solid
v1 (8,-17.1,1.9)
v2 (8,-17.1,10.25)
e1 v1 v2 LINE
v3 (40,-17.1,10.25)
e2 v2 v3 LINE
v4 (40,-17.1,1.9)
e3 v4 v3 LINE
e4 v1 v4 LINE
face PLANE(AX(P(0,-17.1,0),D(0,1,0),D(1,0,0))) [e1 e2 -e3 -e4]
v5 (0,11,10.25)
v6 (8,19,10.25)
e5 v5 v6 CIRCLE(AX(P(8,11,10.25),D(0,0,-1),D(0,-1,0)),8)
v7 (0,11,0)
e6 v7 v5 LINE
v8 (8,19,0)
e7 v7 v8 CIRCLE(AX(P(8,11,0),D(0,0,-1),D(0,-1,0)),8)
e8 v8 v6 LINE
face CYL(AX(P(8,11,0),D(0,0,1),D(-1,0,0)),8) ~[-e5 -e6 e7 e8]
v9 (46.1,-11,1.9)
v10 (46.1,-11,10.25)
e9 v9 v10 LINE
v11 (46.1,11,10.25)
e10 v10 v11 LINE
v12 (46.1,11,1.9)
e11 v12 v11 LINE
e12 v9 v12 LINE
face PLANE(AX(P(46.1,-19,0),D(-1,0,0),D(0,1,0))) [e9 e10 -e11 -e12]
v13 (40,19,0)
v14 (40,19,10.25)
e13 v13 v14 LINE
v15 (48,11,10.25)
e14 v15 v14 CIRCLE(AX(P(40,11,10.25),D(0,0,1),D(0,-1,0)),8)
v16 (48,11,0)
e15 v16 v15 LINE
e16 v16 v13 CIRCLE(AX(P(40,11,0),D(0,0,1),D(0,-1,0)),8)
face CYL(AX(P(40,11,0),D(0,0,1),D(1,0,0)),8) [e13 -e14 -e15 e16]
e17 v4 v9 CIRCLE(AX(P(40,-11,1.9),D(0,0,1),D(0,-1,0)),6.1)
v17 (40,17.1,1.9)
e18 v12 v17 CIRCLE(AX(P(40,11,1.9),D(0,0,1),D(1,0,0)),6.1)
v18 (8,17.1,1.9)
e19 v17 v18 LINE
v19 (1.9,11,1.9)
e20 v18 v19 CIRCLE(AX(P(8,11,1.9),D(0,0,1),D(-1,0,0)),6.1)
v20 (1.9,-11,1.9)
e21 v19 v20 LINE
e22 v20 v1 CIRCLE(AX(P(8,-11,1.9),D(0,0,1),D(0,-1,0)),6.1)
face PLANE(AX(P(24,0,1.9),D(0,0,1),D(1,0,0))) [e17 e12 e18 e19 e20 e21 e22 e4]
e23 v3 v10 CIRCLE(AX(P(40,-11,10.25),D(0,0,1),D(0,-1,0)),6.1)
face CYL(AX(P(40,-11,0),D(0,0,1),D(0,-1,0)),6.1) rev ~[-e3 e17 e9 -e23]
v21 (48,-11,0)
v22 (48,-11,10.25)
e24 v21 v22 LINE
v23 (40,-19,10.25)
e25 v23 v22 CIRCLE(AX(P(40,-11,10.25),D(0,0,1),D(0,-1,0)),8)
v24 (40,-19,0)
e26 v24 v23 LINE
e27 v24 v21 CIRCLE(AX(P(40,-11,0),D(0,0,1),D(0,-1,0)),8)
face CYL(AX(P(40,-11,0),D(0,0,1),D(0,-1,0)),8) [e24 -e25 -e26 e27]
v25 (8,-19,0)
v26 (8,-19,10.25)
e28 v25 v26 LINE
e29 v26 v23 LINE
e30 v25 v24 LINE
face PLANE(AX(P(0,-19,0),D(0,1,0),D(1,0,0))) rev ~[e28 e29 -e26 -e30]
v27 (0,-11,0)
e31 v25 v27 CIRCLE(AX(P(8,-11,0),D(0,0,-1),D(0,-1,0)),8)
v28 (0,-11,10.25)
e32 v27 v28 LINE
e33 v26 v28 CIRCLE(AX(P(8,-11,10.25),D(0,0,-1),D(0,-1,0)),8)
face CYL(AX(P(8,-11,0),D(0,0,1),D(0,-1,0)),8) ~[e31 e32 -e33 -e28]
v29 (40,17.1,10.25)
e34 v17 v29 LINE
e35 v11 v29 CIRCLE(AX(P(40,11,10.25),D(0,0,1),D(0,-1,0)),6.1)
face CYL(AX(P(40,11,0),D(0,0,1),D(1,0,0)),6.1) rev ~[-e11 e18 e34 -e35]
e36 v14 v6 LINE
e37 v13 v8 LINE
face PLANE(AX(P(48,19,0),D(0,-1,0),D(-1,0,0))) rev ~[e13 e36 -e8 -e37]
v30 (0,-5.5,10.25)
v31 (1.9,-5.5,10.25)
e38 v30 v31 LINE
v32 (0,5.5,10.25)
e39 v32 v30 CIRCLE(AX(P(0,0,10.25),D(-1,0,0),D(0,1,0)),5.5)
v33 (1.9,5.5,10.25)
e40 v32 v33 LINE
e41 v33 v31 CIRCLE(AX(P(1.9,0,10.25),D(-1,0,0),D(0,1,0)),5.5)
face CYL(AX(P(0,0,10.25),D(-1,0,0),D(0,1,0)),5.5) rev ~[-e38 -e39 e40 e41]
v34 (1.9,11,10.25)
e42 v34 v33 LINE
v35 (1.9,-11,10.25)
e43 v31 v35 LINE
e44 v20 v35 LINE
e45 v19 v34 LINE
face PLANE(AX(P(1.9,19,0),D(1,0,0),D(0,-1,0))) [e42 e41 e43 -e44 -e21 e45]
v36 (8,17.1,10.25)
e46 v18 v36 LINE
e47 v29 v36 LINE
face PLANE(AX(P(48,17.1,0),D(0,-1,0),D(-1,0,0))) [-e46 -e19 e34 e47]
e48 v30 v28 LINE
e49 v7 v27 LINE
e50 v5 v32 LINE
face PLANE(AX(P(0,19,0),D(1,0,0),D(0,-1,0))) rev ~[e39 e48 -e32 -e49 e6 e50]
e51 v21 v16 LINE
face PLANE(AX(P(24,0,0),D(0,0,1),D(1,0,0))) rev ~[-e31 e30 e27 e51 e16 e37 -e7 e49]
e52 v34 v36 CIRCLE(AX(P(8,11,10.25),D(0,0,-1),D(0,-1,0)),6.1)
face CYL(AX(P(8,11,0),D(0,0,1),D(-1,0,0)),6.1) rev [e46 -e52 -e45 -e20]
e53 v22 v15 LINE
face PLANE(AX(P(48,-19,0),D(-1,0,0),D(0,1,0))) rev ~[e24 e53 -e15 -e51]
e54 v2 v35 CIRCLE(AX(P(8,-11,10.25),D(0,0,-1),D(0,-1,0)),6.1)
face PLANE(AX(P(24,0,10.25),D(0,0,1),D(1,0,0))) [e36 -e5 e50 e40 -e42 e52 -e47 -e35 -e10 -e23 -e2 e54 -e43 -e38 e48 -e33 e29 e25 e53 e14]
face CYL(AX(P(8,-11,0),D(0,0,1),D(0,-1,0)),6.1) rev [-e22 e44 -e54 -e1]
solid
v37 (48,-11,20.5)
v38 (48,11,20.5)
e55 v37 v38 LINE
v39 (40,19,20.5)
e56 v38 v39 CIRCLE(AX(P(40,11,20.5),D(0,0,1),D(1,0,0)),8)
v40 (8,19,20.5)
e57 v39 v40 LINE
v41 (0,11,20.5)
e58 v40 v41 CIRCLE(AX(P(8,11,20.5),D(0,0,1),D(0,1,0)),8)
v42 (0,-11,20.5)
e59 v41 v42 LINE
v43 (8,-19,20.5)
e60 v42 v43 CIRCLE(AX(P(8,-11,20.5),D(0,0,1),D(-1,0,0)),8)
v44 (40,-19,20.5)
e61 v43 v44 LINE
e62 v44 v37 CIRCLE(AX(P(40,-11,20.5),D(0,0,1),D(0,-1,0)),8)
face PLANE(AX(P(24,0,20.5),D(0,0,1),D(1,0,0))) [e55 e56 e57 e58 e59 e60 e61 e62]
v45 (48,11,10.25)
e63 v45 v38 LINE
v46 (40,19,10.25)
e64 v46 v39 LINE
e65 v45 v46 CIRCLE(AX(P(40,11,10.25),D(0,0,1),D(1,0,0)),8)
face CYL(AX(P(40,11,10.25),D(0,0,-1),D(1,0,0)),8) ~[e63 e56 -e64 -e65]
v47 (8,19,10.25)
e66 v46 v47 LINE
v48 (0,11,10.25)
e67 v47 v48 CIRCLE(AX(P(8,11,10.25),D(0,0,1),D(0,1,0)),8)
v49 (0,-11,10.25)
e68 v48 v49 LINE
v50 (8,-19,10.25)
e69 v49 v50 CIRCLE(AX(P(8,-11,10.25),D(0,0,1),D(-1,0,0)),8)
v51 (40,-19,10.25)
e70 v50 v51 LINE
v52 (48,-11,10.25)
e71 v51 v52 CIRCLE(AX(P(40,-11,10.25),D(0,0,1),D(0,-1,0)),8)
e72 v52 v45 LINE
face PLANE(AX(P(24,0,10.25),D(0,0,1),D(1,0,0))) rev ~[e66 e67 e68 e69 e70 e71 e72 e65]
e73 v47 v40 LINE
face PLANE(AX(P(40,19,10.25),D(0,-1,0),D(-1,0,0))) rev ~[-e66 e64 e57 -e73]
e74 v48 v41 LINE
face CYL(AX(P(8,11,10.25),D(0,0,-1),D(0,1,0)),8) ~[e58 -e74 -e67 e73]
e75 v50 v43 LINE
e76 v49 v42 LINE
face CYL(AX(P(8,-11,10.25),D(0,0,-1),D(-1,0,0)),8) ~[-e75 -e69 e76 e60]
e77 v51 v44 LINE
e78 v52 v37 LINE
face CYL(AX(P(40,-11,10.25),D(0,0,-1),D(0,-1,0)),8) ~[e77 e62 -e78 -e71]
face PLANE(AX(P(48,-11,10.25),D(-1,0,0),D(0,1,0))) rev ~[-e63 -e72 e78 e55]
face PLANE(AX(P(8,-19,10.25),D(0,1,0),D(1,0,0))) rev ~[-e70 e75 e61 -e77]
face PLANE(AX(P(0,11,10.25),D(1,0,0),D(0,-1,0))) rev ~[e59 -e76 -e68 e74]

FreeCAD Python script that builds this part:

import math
import FreeCAD as App
import Part
import Sketcher

V = App.Vector


def edges_at(feature, points):
    """Names of the edges that pass closest to the given points."""
    edges = feature.Shape.Edges
    near = lambda p: min(range(len(edges)), key=lambda i: edges[i].distToShape(Part.Vertex(*p))[0])
    return sorted({f"Edge{near(p) + 1}" for p in points})


def faces_at(feature, points):
    """Names of the faces that lie closest to the given points."""
    faces = feature.Shape.Faces
    near = lambda p: min(range(len(faces)), key=lambda i: faces[i].distToShape(Part.Vertex(*p))[0])
    return sorted({f"Face{near(p) + 1}" for p in points})

doc = App.newDocument("Part")
body = doc.addObject("PartDesign::Body", "Body")

sketch1 = doc.addObject("Sketcher::SketchObject", "Sketch")
body.addObject(sketch1)
sketch1.AttachmentSupport = (doc.XY_Plane, [""])
sketch1.MapMode = "FlatFace"
sketch1.addGeometry([
    Part.LineSegment(V(0, 19, 0), V(0, -19, 0)),
    Part.LineSegment(V(0, -19, 0), V(48, -19, 0)),
    Part.LineSegment(V(48, -19, 0), V(48, 19, 0)),
    Part.LineSegment(V(48, 19, 0), V(0, 19, 0)),
], False)
sketch1.addConstraint([
    Sketcher.Constraint("Coincident", 0, 2, 1, 1),
    Sketcher.Constraint("Coincident", 1, 2, 2, 1),
    Sketcher.Constraint("Coincident", 2, 2, 3, 1),
    Sketcher.Constraint("Coincident", 3, 2, 0, 1),
    Sketcher.Constraint("Vertical", 0),
    Sketcher.Constraint("Horizontal", 1),
    Sketcher.Constraint("Vertical", 2),
    Sketcher.Constraint("Horizontal", 3),
    Sketcher.Constraint("Symmetric", 0, 2, 3, 2, -1, 1),
    Sketcher.Constraint("DistanceX", 1, 1, 1, 2, 48.0),
    Sketcher.Constraint("DistanceY", 0, 2, 0, 1, 38.0),
])
pad1 = doc.addObject("PartDesign::Pad", "Pad")
body.addObject(pad1)
pad1.Profile = sketch1
pad1.Length = 10.25
doc.recompute()

fillet = doc.addObject("PartDesign::Fillet", "Fillet")
body.addObject(fillet)
fillet.Base = (pad1, edges_at(pad1, [(48, -19, 5.125), (48, 19, 5.125)]))
fillet.Radius = 8
doc.recompute()

fillet2 = doc.addObject("PartDesign::Fillet", "Fillet001")
body.addObject(fillet2)
fillet2.Base = (fillet, edges_at(fillet, [(0, -19, 5.125), (0, 19, 5.125)]))
fillet2.Radius = 8
doc.recompute()

thickness = doc.addObject("PartDesign::Thickness", "Thickness")
body.addObject(thickness)
thickness.Base = (fillet2, faces_at(fillet2, [(24, 0, 10.25)]))
thickness.Value = 1.9
thickness.Reversed = True
thickness.Join = "Arc"

sketch2 = doc.addObject("Sketcher::SketchObject", "Sketch001")
body.addObject(sketch2)
sketch2.AttachmentSupport = (doc.YZ_Plane, [""])
sketch2.MapMode = "FlatFace"
sketch2.addGeometry([
    Part.ArcOfCircle(Part.Circle(V(0, 10, 0), V(0, 0, 1), 6), math.radians(180), math.radians(360)),
    Part.LineSegment(V(-6, 10, 0), V(6, 10, 0)),
], False)
sketch2.addConstraint([
    Sketcher.Constraint("Coincident", 0, 1, 1, 1),
    Sketcher.Constraint("Coincident", 1, 2, 0, 2),
    Sketcher.Constraint("Horizontal", 1),
    Sketcher.Constraint("PointOnObject", 0, 3, -2),
    Sketcher.Constraint("Radius", 0, 5.5),
    Sketcher.Constraint("DistanceY", -1, 1, 0, 3, 10.25),
    Sketcher.Constraint("DistanceY", -1, 1, 0, 1, 10.25),
])
pocket1 = doc.addObject("PartDesign::Pocket", "Pocket")
body.addObject(pocket1)
pocket1.Profile = sketch2
pocket1.Length = 1.9
pocket1.Reversed = True
body2 = doc.addObject("PartDesign::Body", "Body001")

sketch3 = doc.addObject("Sketcher::SketchObject", "Sketch002")
body2.addObject(sketch3)
sketch3.AttachmentSupport = (doc.getObject("XY_Plane001"), [""])
sketch3.MapMode = "FlatFace"
sketch3.AttachmentOffset = App.Placement(V(0, 0, 10.25), App.Rotation())
sketch3.addGeometry([
    Part.LineSegment(V(0, 11, 0), V(0, -11, 0)),
    Part.ArcOfCircle(Part.Circle(V(8, -11, 0), V(0, 0, 1), 8), math.radians(180), math.radians(270)),
    Part.LineSegment(V(8, -19, 0), V(40, -19, 0)),
    Part.ArcOfCircle(Part.Circle(V(40, -11, 0), V(0, 0, 1), 8), math.radians(-90), math.radians(0)),
    Part.LineSegment(V(48, -11, 0), V(48, 11, 0)),
    Part.ArcOfCircle(Part.Circle(V(40, 11, 0), V(0, 0, 1), 8), math.radians(0), math.radians(90)),
    Part.LineSegment(V(40, 19, 0), V(8, 19, 0)),
    Part.ArcOfCircle(Part.Circle(V(8, 11, 0), V(0, 0, 1), 8), math.radians(90), math.radians(180)),
], False)
sketch3.addConstraint([
    Sketcher.Constraint("Tangent", 0, 2, 1, 1),
    Sketcher.Constraint("Tangent", 1, 2, 2, 1),
    Sketcher.Constraint("Tangent", 2, 2, 3, 1),
    Sketcher.Constraint("Tangent", 3, 2, 4, 1),
    Sketcher.Constraint("Tangent", 4, 2, 5, 1),
    Sketcher.Constraint("Tangent", 5, 2, 6, 1),
    Sketcher.Constraint("Tangent", 6, 2, 7, 1),
    Sketcher.Constraint("Tangent", 7, 2, 0, 1),
    Sketcher.Constraint("Vertical", 0),
    Sketcher.Constraint("Horizontal", 2),
    Sketcher.Constraint("Vertical", 4),
    Sketcher.Constraint("Horizontal", 6),
    Sketcher.Constraint("Equal", 1, 3),
    Sketcher.Constraint("Equal", 3, 5),
    Sketcher.Constraint("Equal", 5, 7),
    Sketcher.Constraint("Symmetric", 0, 2, 7, 2, -1, 1),
    Sketcher.Constraint("Radius", 1, 8.0),
    Sketcher.Constraint("DistanceX", 2, 1, 2, 2, 32.0),
    Sketcher.Constraint("DistanceY", 0, 2, 0, 1, 22.0),
])
pad2 = doc.addObject("PartDesign::Pad", "Pad001")
body2.addObject(pad2)
pad2.Profile = sketch3
pad2.Length = 10.25

doc.recompute()
